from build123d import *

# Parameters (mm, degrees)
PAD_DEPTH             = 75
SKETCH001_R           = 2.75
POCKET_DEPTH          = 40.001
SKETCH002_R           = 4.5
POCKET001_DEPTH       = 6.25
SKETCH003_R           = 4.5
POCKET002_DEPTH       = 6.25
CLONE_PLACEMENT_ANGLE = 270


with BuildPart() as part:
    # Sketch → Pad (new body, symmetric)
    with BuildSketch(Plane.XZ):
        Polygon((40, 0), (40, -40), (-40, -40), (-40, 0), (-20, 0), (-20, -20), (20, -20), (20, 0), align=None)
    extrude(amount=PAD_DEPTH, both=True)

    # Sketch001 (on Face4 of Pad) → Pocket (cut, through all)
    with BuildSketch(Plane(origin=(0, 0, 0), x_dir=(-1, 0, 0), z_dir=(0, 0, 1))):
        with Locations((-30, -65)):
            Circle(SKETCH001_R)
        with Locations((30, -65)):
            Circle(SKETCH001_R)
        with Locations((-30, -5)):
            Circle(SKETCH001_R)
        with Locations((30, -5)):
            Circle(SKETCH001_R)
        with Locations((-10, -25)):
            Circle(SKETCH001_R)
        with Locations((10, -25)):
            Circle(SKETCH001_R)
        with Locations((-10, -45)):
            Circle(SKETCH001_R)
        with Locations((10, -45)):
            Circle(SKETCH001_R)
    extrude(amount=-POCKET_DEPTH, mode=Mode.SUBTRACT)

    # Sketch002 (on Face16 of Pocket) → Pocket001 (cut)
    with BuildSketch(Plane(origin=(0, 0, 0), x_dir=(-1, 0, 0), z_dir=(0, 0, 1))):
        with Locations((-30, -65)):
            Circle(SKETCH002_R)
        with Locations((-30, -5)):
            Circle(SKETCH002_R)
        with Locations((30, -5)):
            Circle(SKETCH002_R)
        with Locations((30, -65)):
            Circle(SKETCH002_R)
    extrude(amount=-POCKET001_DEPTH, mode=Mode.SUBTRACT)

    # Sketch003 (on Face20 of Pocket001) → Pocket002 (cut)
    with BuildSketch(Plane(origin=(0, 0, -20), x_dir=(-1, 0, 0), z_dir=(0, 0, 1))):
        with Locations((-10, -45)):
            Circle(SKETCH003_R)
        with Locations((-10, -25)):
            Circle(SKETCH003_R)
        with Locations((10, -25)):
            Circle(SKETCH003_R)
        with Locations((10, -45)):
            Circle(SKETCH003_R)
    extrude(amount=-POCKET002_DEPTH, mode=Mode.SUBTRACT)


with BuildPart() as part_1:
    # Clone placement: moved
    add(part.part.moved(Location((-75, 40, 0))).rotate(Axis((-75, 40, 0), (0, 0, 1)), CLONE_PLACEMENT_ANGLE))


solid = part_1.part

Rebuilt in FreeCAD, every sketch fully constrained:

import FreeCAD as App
import Part
import Sketcher

V = App.Vector
Q = App.Units.Quantity

doc = App.newDocument("Part")
params = doc.addObject("Spreadsheet::Sheet", "Params")
for row, (alias, value) in enumerate([
    ("sketch1_width", "20 mm"),
    ("sketch1_width2", "40 mm"),
    ("pad1_length", "150 mm"),
    ("sketch2_diameter", "5.5 mm"),
    ("sketch3_diameter", "9 mm"),
    ("pocket2_length", "6.25 mm"),
    ("sketch4_diameter", "9 mm"),
    ("pocket3_length", "6.25 mm"),
], start=1):
    params.set(f"A{row}", alias)
    params.set(f"B{row}", "=" + value)
    params.setAlias(f"B{row}", alias)

body = doc.addObject("PartDesign::Body", "Body")

# Sketch on XZ plane
sketch1 = body.newObject("Sketcher::SketchObject", "Sketch")
sketch1.AttachmentSupport = (doc.getObject("XZ_Plane"), [""])
sketch1.MapMode = "FlatFace"
sketch1.addGeometry(Part.LineSegment(V(40, -40, 0), V(40, 0, 0)), False)
sketch1.addGeometry(Part.LineSegment(V(40, 0, 0), V(20, 0, 0)), False)
sketch1.addGeometry(Part.LineSegment(V(20, 0, 0), V(20, -20, 0)), False)
sketch1.addGeometry(Part.LineSegment(V(20, -20, 0), V(-20, -20, 0)), False)
sketch1.addGeometry(Part.LineSegment(V(-20, -20, 0), V(-20, 0, 0)), False)
sketch1.addGeometry(Part.LineSegment(V(-20, 0, 0), V(-40, 0, 0)), False)
sketch1.addGeometry(Part.LineSegment(V(-40, 0, 0), V(-40, -40, 0)), False)
sketch1.addGeometry(Part.LineSegment(V(-40, -40, 0), V(40, -40, 0)), False)
sketch1.addConstraint(Sketcher.Constraint("Coincident", 0, 2, 1, 1))
sketch1.addConstraint(Sketcher.Constraint("Coincident", 1, 2, 2, 1))
sketch1.addConstraint(Sketcher.Constraint("Coincident", 2, 2, 3, 1))
sketch1.addConstraint(Sketcher.Constraint("Coincident", 3, 2, 4, 1))
sketch1.addConstraint(Sketcher.Constraint("Coincident", 4, 2, 5, 1))
sketch1.addConstraint(Sketcher.Constraint("Coincident", 5, 2, 6, 1))
sketch1.addConstraint(Sketcher.Constraint("Coincident", 6, 2, 7, 1))
sketch1.addConstraint(Sketcher.Constraint("Coincident", 7, 2, 0, 1))
sketch1.addConstraint(Sketcher.Constraint("Vertical", 0))
sketch1.addConstraint(Sketcher.Constraint("Horizontal", 1))
sketch1.addConstraint(Sketcher.Constraint("Vertical", 2))
sketch1.addConstraint(Sketcher.Constraint("Horizontal", 3))
sketch1.addConstraint(Sketcher.Constraint("Vertical", 4))
sketch1.addConstraint(Sketcher.Constraint("Horizontal", 5))
sketch1.addConstraint(Sketcher.Constraint("Vertical", 6))
sketch1.addConstraint(Sketcher.Constraint("Horizontal", 7))
sketch1.addConstraint(Sketcher.Constraint("Symmetric", 1, 2, 4, 2, -1, 1))
sketch1.addConstraint(Sketcher.Constraint("Symmetric", 0, 2, 5, 2, -2))
sketch1.addConstraint(Sketcher.Constraint("Equal", 3, 0))
sketch1.addConstraint(Sketcher.Constraint("Equal", 5, 2))
sketch1.addConstraint(Sketcher.Constraint("DistanceX", 1, 2, 1, 1, Q("20 mm")))
sketch1.addConstraint(Sketcher.Constraint("DistanceX", 3, 2, 3, 1, Q("40 mm")))
sketch1.setExpression("Constraints[20]", "Params.sketch1_width")
sketch1.setExpression("Constraints[21]", "Params.sketch1_width2")
pad1 = body.newObject("PartDesign::Pad", "Pad")
pad1.Profile = sketch1
pad1.setExpression("Length", "Params.pad1_length")
pad1.Midplane = True

# Sketch on XY plane
sketch2 = body.newObject("Sketcher::SketchObject", "Sketch001")
sketch2.AttachmentSupport = (doc.getObject("XY_Plane"), [""])
sketch2.MapMode = "FlatFace"
sketch2.addGeometry(Part.Circle(V(30, 65, 0), V(0, 0, 1), 2.8), False)
sketch2.addGeometry(Part.Circle(V(-30, 65, 0), V(0, 0, 1), 2.8), False)
sketch2.addGeometry(Part.Circle(V(30, 5, 0), V(0, 0, 1), 2.8), False)
sketch2.addGeometry(Part.Circle(V(-30, 5, 0), V(0, 0, 1), 2.8), False)
sketch2.addGeometry(Part.Circle(V(10, 25, 0), V(0, 0, 1), 2.8), False)
sketch2.addGeometry(Part.Circle(V(-10, 25, 0), V(0, 0, 1), 2.8), False)
sketch2.addGeometry(Part.Circle(V(10, 45, 0), V(0, 0, 1), 2.8), False)
sketch2.addGeometry(Part.Circle(V(-10, 45, 0), V(0, 0, 1), 2.8), False)
sketch2.addConstraint(Sketcher.Constraint("Equal", 0, 1))
sketch2.addConstraint(Sketcher.Constraint("Equal", 1, 2))
sketch2.addConstraint(Sketcher.Constraint("Equal", 2, 3))
sketch2.addConstraint(Sketcher.Constraint("Equal", 3, 4))
sketch2.addConstraint(Sketcher.Constraint("Equal", 4, 5))
sketch2.addConstraint(Sketcher.Constraint("Equal", 5, 6))
sketch2.addConstraint(Sketcher.Constraint("Equal", 6, 7))
sketch2.addConstraint(Sketcher.Constraint("Symmetric", 0, 3, 1, 3, -2))
sketch2.addConstraint(Sketcher.Constraint("Symmetric", 2, 3, 3, 3, -2))
sketch2.addConstraint(Sketcher.Constraint("Symmetric", 4, 3, 5, 3, -2))
sketch2.addConstraint(Sketcher.Constraint("Symmetric", 6, 3, 7, 3, -2))
sketch2.addConstraint(Sketcher.Constraint("Vertical", 0, 3, 2, 3))
sketch2.addConstraint(Sketcher.Constraint("Vertical", 4, 3, 6, 3))
sketch2.addConstraint(Sketcher.Constraint("Diameter", 0, Q("5.5 mm")))
sketch2.addConstraint(Sketcher.Constraint("DistanceX", -1, 1, 0, 3, Q("30 mm")))
sketch2.addConstraint(Sketcher.Constraint("DistanceY", -1, 1, 0, 3, Q("65 mm")))
sketch2.addConstraint(Sketcher.Constraint("DistanceY", -1, 1, 2, 3, Q("5 mm")))
sketch2.addConstraint(Sketcher.Constraint("DistanceX", -1, 1, 4, 3, Q("10 mm")))
sketch2.addConstraint(Sketcher.Constraint("DistanceY", -1, 1, 4, 3, Q("25 mm")))
sketch2.addConstraint(Sketcher.Constraint("DistanceY", -1, 1, 6, 3, Q("45 mm")))
sketch2.setExpression("Constraints[13]", "Params.sketch2_diameter")
pocket1 = body.newObject("PartDesign::Pocket", "Pocket")
pocket1.Profile = sketch2
pocket1.Type = "ThroughAll"

# Sketch on XY plane
sketch3 = body.newObject("Sketcher::SketchObject", "Sketch002")
sketch3.AttachmentSupport = (doc.getObject("XY_Plane"), [""])
sketch3.MapMode = "FlatFace"
sketch3.addGeometry(Part.Circle(V(30, 65, 0), V(0, 0, 1), 4.5), False)
sketch3.addGeometry(Part.Circle(V(30, 5, 0), V(0, 0, 1), 4.5), False)
sketch3.addGeometry(Part.Circle(V(-30, 5, 0), V(0, 0, 1), 4.5), False)
sketch3.addGeometry(Part.Circle(V(-30, 65, 0), V(0, 0, 1), 4.5), False)
sketch3.addConstraint(Sketcher.Constraint("Equal", 0, 1))
sketch3.addConstraint(Sketcher.Constraint("Equal", 1, 2))
sketch3.addConstraint(Sketcher.Constraint("Equal", 2, 3))
sketch3.addConstraint(Sketcher.Constraint("Symmetric", 1, 3, 2, 3, -2))
sketch3.addConstraint(Sketcher.Constraint("Symmetric", 0, 3, 3, 3, -2))
sketch3.addConstraint(Sketcher.Constraint("Vertical", 0, 3, 1, 3))
sketch3.addConstraint(Sketcher.Constraint("Diameter", 0, Q("9 mm")))
sketch3.addConstraint(Sketcher.Constraint("DistanceX", -1, 1, 0, 3, Q("30 mm")))
sketch3.addConstraint(Sketcher.Constraint("DistanceY", -1, 1, 0, 3, Q("65 mm")))
sketch3.addConstraint(Sketcher.Constraint("DistanceY", -1, 1, 1, 3, Q("5 mm")))
sketch3.setExpression("Constraints[6]", "Params.sketch3_diameter")
pocket2 = body.newObject("PartDesign::Pocket", "Pocket001")
pocket2.Profile = sketch3
pocket2.setExpression("Length", "Params.pocket2_length")

# Sketch on XY plane
sketch4 = body.newObject("Sketcher::SketchObject", "Sketch003")
sketch4.AttachmentSupport = (doc.getObject("XY_Plane"), [""])
sketch4.MapMode = "FlatFace"
sketch4.AttachmentOffset = App.Placement(V(0, 0, -20), App.Rotation())
sketch4.addGeometry(Part.Circle(V(10, 45, 0), V(0, 0, 1), 4.5), False)
sketch4.addGeometry(Part.Circle(V(10, 25, 0), V(0, 0, 1), 4.5), False)
sketch4.addGeometry(Part.Circle(V(-10, 25, 0), V(0, 0, 1), 4.5), False)
sketch4.addGeometry(Part.Circle(V(-10, 45, 0), V(0, 0, 1), 4.5), False)
sketch4.addConstraint(Sketcher.Constraint("Equal", 0, 1))
sketch4.addConstraint(Sketcher.Constraint("Equal", 1, 2))
sketch4.addConstraint(Sketcher.Constraint("Equal", 2, 3))
sketch4.addConstraint(Sketcher.Constraint("Symmetric", 1, 3, 2, 3, -2))
sketch4.addConstraint(Sketcher.Constraint("Symmetric", 0, 3, 3, 3, -2))
sketch4.addConstraint(Sketcher.Constraint("Vertical", 0, 3, 1, 3))
sketch4.addConstraint(Sketcher.Constraint("Diameter", 0, Q("9 mm")))
sketch4.addConstraint(Sketcher.Constraint("DistanceX", -1, 1, 0, 3, Q("10 mm")))
sketch4.addConstraint(Sketcher.Constraint("DistanceY", -1, 1, 0, 3, Q("45 mm")))
sketch4.addConstraint(Sketcher.Constraint("DistanceY", -1, 1, 1, 3, Q("25 mm")))
sketch4.setExpression("Constraints[6]", "Params.sketch4_diameter")
pocket3 = body.newObject("PartDesign::Pocket", "Pocket002")
pocket3.Profile = sketch4
pocket3.setExpression("Length", "Params.pocket3_length")
body2 = doc.addObject("PartDesign::Body", "Body001")
doc.recompute()

body.Placement = App.Placement(V(-75, 40, 0), App.Rotation(V(0, 0, 1), 270))
boolean = body2.newObject("PartDesign::Boolean", "Boolean")
boolean.Type = "Fuse"
boolean.addObjects([body])

doc.recompute()
